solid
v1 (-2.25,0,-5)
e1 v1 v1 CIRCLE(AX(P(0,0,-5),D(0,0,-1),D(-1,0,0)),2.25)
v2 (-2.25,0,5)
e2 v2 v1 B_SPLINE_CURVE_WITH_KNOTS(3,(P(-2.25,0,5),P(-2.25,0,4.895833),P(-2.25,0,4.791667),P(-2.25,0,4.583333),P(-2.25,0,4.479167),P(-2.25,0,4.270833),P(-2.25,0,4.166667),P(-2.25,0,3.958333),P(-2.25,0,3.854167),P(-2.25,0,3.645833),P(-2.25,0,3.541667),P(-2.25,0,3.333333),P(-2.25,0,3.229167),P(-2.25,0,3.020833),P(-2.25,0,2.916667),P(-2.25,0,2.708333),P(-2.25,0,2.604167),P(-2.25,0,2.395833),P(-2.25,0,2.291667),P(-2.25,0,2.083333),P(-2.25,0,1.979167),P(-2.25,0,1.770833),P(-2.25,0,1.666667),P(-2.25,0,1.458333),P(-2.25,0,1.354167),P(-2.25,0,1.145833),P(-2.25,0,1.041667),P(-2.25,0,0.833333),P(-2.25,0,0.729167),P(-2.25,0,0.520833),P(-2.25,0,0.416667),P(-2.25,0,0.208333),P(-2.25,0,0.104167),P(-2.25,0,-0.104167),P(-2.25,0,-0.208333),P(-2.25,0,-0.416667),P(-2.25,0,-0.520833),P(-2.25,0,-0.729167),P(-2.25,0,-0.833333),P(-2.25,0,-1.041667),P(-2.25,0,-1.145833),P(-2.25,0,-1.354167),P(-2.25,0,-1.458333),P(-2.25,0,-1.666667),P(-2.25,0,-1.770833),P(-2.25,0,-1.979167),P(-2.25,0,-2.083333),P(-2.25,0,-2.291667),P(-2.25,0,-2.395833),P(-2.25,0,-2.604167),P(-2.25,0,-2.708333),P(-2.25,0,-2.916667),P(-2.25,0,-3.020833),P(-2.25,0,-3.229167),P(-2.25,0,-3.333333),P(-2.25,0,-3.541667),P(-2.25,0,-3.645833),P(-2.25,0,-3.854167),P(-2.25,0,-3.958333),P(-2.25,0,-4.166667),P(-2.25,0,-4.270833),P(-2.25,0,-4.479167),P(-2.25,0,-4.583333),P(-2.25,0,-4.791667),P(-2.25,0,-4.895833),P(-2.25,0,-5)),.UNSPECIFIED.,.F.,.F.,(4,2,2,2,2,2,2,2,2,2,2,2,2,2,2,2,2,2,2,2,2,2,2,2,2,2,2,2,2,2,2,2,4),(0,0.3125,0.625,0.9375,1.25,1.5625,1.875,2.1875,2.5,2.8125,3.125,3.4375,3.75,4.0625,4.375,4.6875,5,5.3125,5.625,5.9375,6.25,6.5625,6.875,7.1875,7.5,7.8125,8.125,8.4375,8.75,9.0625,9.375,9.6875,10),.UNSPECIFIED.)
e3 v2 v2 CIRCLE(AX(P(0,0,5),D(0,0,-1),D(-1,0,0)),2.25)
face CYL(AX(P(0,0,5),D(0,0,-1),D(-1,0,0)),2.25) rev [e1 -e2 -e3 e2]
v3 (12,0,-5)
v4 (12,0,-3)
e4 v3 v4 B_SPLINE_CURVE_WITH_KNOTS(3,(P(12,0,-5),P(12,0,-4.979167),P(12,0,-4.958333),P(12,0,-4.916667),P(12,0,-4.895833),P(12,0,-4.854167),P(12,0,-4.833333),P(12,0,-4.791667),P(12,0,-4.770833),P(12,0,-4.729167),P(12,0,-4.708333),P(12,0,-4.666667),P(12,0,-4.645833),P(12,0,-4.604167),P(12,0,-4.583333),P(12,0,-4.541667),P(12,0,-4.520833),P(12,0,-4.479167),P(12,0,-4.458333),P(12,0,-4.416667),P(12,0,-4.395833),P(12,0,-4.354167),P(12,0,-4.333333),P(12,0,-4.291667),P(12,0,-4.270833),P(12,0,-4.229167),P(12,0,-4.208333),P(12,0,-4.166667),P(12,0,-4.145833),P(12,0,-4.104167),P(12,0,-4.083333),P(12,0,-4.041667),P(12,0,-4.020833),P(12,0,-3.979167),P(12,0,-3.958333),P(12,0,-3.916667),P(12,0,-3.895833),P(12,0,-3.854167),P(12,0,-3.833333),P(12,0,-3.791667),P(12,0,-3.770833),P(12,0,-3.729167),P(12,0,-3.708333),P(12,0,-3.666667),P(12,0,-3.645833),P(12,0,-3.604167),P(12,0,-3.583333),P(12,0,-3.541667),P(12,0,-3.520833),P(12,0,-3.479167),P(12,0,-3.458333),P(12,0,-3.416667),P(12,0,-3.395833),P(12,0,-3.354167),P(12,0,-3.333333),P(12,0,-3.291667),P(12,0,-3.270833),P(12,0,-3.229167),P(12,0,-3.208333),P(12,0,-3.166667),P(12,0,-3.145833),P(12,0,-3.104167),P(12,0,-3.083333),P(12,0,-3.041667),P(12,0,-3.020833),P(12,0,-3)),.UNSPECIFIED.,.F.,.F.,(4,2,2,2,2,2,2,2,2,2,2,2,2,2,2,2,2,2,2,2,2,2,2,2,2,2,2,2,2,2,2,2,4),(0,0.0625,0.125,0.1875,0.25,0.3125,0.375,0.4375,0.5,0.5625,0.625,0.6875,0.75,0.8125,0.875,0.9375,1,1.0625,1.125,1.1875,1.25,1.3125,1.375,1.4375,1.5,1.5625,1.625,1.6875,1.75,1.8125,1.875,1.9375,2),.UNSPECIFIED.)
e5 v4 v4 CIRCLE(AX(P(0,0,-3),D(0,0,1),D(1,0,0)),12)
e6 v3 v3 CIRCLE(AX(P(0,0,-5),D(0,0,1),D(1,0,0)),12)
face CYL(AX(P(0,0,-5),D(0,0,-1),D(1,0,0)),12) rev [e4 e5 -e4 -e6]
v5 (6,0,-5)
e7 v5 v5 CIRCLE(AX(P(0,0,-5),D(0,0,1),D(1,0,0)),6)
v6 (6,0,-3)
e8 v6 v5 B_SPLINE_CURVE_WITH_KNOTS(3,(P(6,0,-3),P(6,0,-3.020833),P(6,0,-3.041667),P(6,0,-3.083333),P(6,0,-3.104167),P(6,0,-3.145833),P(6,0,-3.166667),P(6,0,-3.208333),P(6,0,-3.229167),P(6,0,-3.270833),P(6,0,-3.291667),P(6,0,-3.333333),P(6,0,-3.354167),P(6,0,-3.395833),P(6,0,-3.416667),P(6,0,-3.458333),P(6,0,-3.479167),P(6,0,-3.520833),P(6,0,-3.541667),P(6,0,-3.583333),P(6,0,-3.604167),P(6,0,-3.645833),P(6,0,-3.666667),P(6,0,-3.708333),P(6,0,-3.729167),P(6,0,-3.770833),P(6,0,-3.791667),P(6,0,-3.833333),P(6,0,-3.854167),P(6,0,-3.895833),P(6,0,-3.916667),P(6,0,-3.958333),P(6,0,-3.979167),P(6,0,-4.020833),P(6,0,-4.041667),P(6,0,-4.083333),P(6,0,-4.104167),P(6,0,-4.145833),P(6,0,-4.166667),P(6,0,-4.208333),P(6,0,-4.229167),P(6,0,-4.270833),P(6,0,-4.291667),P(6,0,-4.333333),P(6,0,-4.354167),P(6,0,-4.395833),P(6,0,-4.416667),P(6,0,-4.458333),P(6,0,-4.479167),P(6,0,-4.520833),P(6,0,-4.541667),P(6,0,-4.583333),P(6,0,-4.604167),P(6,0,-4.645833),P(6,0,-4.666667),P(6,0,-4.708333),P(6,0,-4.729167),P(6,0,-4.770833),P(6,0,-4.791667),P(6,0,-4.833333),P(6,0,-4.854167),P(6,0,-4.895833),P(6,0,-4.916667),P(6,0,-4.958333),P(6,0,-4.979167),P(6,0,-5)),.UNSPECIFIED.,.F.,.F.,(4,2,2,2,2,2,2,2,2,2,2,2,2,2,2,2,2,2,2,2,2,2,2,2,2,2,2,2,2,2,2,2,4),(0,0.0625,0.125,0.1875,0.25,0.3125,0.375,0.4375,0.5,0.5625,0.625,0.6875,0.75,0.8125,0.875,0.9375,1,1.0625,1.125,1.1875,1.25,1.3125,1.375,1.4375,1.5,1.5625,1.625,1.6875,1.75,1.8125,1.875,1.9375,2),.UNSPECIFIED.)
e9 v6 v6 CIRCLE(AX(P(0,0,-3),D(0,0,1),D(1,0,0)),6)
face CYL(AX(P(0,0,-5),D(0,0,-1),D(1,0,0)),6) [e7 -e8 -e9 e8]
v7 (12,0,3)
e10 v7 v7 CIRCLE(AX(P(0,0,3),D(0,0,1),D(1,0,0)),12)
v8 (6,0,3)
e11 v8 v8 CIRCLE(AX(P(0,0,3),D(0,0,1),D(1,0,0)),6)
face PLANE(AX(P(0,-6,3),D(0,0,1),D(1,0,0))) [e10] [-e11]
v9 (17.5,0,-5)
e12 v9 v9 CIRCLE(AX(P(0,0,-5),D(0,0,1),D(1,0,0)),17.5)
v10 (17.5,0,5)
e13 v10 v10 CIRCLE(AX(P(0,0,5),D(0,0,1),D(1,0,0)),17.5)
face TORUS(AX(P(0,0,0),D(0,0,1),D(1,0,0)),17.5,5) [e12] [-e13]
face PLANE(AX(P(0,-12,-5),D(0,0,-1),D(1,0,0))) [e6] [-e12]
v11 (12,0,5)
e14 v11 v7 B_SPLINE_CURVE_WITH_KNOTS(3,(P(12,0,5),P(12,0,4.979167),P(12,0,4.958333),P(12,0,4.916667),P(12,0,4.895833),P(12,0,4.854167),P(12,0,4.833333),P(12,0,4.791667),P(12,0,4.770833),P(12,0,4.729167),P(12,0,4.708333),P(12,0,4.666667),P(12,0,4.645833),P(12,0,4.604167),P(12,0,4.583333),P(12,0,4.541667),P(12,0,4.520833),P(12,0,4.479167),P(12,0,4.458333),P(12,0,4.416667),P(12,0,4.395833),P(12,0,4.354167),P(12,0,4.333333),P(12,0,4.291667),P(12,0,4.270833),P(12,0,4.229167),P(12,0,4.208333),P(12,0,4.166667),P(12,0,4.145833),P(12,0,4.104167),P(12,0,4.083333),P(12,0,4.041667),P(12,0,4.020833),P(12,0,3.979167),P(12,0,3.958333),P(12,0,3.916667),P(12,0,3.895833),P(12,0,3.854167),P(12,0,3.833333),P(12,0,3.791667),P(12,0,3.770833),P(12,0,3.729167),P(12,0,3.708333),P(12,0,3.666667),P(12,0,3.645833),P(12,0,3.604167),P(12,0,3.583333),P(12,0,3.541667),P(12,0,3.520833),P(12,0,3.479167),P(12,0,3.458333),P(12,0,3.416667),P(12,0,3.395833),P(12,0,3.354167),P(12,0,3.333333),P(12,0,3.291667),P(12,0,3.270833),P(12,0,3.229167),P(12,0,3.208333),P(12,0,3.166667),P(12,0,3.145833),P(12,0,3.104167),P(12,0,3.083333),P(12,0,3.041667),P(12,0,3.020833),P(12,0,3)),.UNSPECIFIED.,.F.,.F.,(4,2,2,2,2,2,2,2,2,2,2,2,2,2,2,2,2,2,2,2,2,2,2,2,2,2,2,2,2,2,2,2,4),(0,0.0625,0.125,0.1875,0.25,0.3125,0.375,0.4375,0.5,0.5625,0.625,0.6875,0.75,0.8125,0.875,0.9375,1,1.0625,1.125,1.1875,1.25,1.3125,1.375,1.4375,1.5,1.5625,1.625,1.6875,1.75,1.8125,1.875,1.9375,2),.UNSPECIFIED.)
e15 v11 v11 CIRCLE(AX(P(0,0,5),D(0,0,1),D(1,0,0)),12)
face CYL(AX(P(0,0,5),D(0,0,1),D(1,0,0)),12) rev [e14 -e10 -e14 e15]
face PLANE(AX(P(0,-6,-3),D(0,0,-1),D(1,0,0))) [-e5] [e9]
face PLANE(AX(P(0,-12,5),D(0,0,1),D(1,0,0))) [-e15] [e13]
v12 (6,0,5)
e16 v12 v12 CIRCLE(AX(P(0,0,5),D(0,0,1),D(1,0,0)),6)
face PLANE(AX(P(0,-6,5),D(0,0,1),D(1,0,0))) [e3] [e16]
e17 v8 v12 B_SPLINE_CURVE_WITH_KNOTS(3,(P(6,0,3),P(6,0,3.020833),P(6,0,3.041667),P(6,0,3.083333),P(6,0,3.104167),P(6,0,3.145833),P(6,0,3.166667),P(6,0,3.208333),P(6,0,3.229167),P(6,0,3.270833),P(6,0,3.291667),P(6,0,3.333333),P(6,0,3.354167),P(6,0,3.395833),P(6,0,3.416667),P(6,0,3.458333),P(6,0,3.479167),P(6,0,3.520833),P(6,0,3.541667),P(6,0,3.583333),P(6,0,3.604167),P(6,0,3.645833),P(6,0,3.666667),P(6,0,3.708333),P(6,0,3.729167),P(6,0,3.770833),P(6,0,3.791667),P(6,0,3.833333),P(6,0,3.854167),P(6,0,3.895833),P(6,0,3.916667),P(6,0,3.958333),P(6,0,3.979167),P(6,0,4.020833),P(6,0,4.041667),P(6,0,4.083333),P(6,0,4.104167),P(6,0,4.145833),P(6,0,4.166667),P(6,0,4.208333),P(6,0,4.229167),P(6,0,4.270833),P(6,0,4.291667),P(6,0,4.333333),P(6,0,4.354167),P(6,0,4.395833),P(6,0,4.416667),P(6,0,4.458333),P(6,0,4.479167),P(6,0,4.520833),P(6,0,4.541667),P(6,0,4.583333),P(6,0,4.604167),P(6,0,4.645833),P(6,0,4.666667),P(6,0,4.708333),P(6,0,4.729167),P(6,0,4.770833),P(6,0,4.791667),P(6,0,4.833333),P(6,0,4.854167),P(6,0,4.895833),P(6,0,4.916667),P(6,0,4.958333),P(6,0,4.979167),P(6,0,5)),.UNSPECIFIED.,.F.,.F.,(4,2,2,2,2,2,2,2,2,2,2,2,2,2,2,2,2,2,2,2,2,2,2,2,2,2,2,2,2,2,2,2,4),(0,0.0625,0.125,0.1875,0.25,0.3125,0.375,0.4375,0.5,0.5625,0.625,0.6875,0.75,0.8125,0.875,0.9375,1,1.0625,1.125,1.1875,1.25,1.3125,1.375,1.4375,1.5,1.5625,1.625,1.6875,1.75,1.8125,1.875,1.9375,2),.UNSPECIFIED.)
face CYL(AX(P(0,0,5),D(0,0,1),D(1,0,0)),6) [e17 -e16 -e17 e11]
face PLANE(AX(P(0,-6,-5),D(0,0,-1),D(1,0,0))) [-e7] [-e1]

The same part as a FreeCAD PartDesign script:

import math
import FreeCAD as App
import Part
import Sketcher

V = App.Vector

doc = App.newDocument("Part")
body = doc.addObject("PartDesign::Body", "Body")

# Sketch on YZ plane
sketch1 = body.newObject("Sketcher::SketchObject", "Sketch")
sketch1.AttachmentSupport = (doc.getObject("YZ_Plane"), [""])
sketch1.MapMode = "FlatFace"
sketch1.addGeometry(Part.LineSegment(V(-22.5, 0, 0), V(0, 0, 0)), False)
sketch1.addGeometry(Part.LineSegment(V(0, 0, 0), V(0, 5, 0)), False)
sketch1.addGeometry(Part.LineSegment(V(0, 5, 0), V(-6, 5, 0)), False)
sketch1.addGeometry(Part.LineSegment(V(-6, 5, 0), V(-6, 3, 0)), False)
sketch1.addGeometry(Part.LineSegment(V(-6, 3, 0), V(-12, 3, 0)), False)
sketch1.addGeometry(Part.LineSegment(V(-12, 3, 0), V(-12, 5, 0)), False)
sketch1.addGeometry(Part.LineSegment(V(-12, 5, 0), V(-17.5, 5, 0)), False)
sketch1.addGeometry(Part.ArcOfCircle(Part.Circle(V(-17.5, 0, 0), V(0, 0, 1), 5), math.radians(90), math.radians(180)), False)
sketch1.addConstraint(Sketcher.Constraint("Coincident", 0, 2, 1, 1))
sketch1.addConstraint(Sketcher.Constraint("Coincident", 1, 2, 2, 1))
sketch1.addConstraint(Sketcher.Constraint("Coincident", 2, 2, 3, 1))
sketch1.addConstraint(Sketcher.Constraint("Coincident", 3, 2, 4, 1))
sketch1.addConstraint(Sketcher.Constraint("Coincident", 4, 2, 5, 1))
sketch1.addConstraint(Sketcher.Constraint("Coincident", 5, 2, 6, 1))
sketch1.addConstraint(Sketcher.Constraint("Tangent", 6, 2, 7, 1))
sketch1.addConstraint(Sketcher.Constraint("Coincident", 7, 2, 0, 1))
sketch1.addConstraint(Sketcher.Constraint("Horizontal", 0))
sketch1.addConstraint(Sketcher.Constraint("Vertical", 1))
sketch1.addConstraint(Sketcher.Constraint("Horizontal", 2))
sketch1.addConstraint(Sketcher.Constraint("Vertical", 3))
sketch1.addConstraint(Sketcher.Constraint("Horizontal", 4))
sketch1.addConstraint(Sketcher.Constraint("Vertical", 5))
sketch1.addConstraint(Sketcher.Constraint("Horizontal", 6))
sketch1.addConstraint(Sketcher.Constraint("Coincident", 0, 2, -1, 1))
sketch1.addConstraint(Sketcher.Constraint("PointOnObject", 7, 3, -1))
sketch1.addConstraint(Sketcher.Constraint("Horizontal", 2, 2, 5, 2))
sketch1.addConstraint(Sketcher.Constraint("Equal", 2, 4))
sketch1.addConstraint(Sketcher.Constraint("Radius", 7, 5.0))
sketch1.addConstraint(Sketcher.Constraint("DistanceX", 2, 2, 2, 1, 6.0))
sketch1.addConstraint(Sketcher.Constraint("DistanceY", 3, 2, 3, 1, 2.0))
sketch1.addConstraint(Sketcher.Constraint("DistanceX", 0, 1, 0, 2, 22.5))
revolution = body.newObject("PartDesign::Revolution", "Revolution")
revolution.Profile = sketch1
revolution.ReferenceAxis = (sketch1, ["V_Axis"])
revolution.Angle = 360
doc.recompute()

mirrored = body.newObject("PartDesign::Mirrored", "Mirrored")
mirrored.Originals = [revolution]
mirrored.MirrorPlane = (doc.getObject("XY_Plane"), [""])
body.Tip = mirrored

# Sketch on XY plane
sketch2 = body.newObject("Sketcher::SketchObject", "Sketch001")
sketch2.AttachmentSupport = (doc.getObject("XY_Plane"), [""])
sketch2.MapMode = "FlatFace"
sketch2.AttachmentOffset = App.Placement(V(0, 0, -5), App.Rotation())
sketch2.addGeometry(Part.Circle(V(0, 0, 0), V(0, 0, 1), 2.2), False)
sketch2.addConstraint(Sketcher.Constraint("Coincident", 0, 3, -1, 1))
sketch2.addConstraint(Sketcher.Constraint("Diameter", 0, 4.5))
pocket1 = body.newObject("PartDesign::Pocket", "Pocket")
pocket1.Profile = sketch2
pocket1.Type = "ThroughAll"
pocket1.Reversed = True

doc.recompute()
